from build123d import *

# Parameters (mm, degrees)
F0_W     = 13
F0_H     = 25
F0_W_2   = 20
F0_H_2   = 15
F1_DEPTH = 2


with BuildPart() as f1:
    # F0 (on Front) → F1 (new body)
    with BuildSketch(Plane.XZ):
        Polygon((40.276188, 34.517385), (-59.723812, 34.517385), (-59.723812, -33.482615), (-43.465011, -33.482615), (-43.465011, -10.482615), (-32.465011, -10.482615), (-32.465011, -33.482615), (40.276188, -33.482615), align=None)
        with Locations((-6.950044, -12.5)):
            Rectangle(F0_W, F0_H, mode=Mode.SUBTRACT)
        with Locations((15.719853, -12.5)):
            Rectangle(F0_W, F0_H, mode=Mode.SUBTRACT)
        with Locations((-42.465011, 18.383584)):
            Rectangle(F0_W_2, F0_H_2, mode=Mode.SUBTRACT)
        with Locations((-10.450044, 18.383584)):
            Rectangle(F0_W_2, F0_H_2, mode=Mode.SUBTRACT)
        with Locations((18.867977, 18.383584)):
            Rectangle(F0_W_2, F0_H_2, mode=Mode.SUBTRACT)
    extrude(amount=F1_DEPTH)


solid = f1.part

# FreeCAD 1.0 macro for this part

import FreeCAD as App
import Part
import Sketcher
Q = App.Units.Quantity

doc = App.newDocument("Part")
body = doc.addObject("PartDesign::Body", "Body")

# Sketch on XZ plane
sketch1 = body.newObject("Sketcher::SketchObject", "Sketch")
sketch1.AttachmentSupport = (doc.getObject("XZ_Plane"), [""])
sketch1.MapMode = "FlatFace"
sketch1.addGeometry([
    Part.LineSegment(App.Vector(40.276188, 34.517385, 0), App.Vector(-59.723812, 34.517385, 0)),  # 0
    Part.LineSegment(App.Vector(-59.723812, 34.517385, 0), App.Vector(-59.723812, -33.482615, 0)),  # 1
    Part.LineSegment(App.Vector(-59.723812, -33.482615, 0), App.Vector(-43.465011, -33.482615, 0)),  # 2
    Part.LineSegment(App.Vector(-43.465011, -33.482615, 0), App.Vector(-43.465011, -10.482615, 0)),  # 3
    Part.LineSegment(App.Vector(-43.465011, -10.482615, 0), App.Vector(-32.465011, -10.482615, 0)),  # 4
    Part.LineSegment(App.Vector(-32.465011, -10.482615, 0), App.Vector(-32.465011, -33.482615, 0)),  # 5
    Part.LineSegment(App.Vector(-32.465011, -33.482615, 0), App.Vector(40.276188, -33.482615, 0)),  # 6
    Part.LineSegment(App.Vector(40.276188, -33.482615, 0), App.Vector(40.276188, 34.517385, 0)),  # 7
    Part.LineSegment(App.Vector(-0.450044, -25, 0), App.Vector(-13.450044, -25, 0)),  # 8
    Part.LineSegment(App.Vector(-13.450044, -25, 0), App.Vector(-13.450044, 0, 0)),  # 9
    Part.LineSegment(App.Vector(-13.450044, 0, 0), App.Vector(-0.450044, 0, 0)),  # 10
    Part.LineSegment(App.Vector(-0.450044, 0, 0), App.Vector(-0.450044, -25, 0)),  # 11
    Part.LineSegment(App.Vector(22.219853, -25, 0), App.Vector(9.219853, -25, 0)),  # 12
    Part.LineSegment(App.Vector(9.219853, -25, 0), App.Vector(9.219853, 0, 0)),  # 13
    Part.LineSegment(App.Vector(9.219853, 0, 0), App.Vector(22.219853, 0, 0)),  # 14
    Part.LineSegment(App.Vector(22.219853, 0, 0), App.Vector(22.219853, -25, 0)),  # 15
    Part.LineSegment(App.Vector(-32.465011, 10.883584, 0), App.Vector(-52.465011, 10.883584, 0)),  # 16
    Part.LineSegment(App.Vector(-52.465011, 10.883584, 0), App.Vector(-52.465011, 25.883584, 0)),  # 17
    Part.LineSegment(App.Vector(-52.465011, 25.883584, 0), App.Vector(-32.465011, 25.883584, 0)),  # 18
    Part.LineSegment(App.Vector(-32.465011, 25.883584, 0), App.Vector(-32.465011, 10.883584, 0)),  # 19
    Part.LineSegment(App.Vector(-0.450044, 10.883584, 0), App.Vector(-20.450044, 10.883584, 0)),  # 20
    Part.LineSegment(App.Vector(-20.450044, 10.883584, 0), App.Vector(-20.450044, 25.883584, 0)),  # 21
    Part.LineSegment(App.Vector(-20.450044, 25.883584, 0), App.Vector(-0.450044, 25.883584, 0)),  # 22
    Part.LineSegment(App.Vector(-0.450044, 25.883584, 0), App.Vector(-0.450044, 10.883584, 0)),  # 23
    Part.LineSegment(App.Vector(28.867977, 10.883584, 0), App.Vector(8.867977, 10.883584, 0)),  # 24
    Part.LineSegment(App.Vector(8.867977, 10.883584, 0), App.Vector(8.867977, 25.883584, 0)),  # 25
    Part.LineSegment(App.Vector(8.867977, 25.883584, 0), App.Vector(28.867977, 25.883584, 0)),  # 26
    Part.LineSegment(App.Vector(28.867977, 25.883584, 0), App.Vector(28.867977, 10.883584, 0)),  # 27
], False)
sketch1.addConstraint([
    Sketcher.Constraint("Coincident", 0, 2, 1, 1),
    Sketcher.Constraint("Coincident", 1, 2, 2, 1),
    Sketcher.Constraint("Coincident", 2, 2, 3, 1),
    Sketcher.Constraint("Coincident", 3, 2, 4, 1),
    Sketcher.Constraint("Coincident", 4, 2, 5, 1),
    Sketcher.Constraint("Coincident", 5, 2, 6, 1),
    Sketcher.Constraint("Coincident", 6, 2, 7, 1),
    Sketcher.Constraint("Coincident", 7, 2, 0, 1),
    Sketcher.Constraint("Coincident", 8, 2, 9, 1),
    Sketcher.Constraint("Coincident", 9, 2, 10, 1),
    Sketcher.Constraint("Coincident", 10, 2, 11, 1),
    Sketcher.Constraint("Coincident", 11, 2, 8, 1),
    Sketcher.Constraint("Coincident", 12, 2, 13, 1),
    Sketcher.Constraint("Coincident", 13, 2, 14, 1),
    Sketcher.Constraint("Coincident", 14, 2, 15, 1),
    Sketcher.Constraint("Coincident", 15, 2, 12, 1),
    Sketcher.Constraint("Coincident", 16, 2, 17, 1),
    Sketcher.Constraint("Coincident", 17, 2, 18, 1),
    Sketcher.Constraint("Coincident", 18, 2, 19, 1),
    Sketcher.Constraint("Coincident", 19, 2, 16, 1),
    Sketcher.Constraint("Coincident", 20, 2, 21, 1),
    Sketcher.Constraint("Coincident", 21, 2, 22, 1),
    Sketcher.Constraint("Coincident", 22, 2, 23, 1),
    Sketcher.Constraint("Coincident", 23, 2, 20, 1),
    Sketcher.Constraint("Coincident", 24, 2, 25, 1),
    Sketcher.Constraint("Coincident", 25, 2, 26, 1),
    Sketcher.Constraint("Coincident", 26, 2, 27, 1),
    Sketcher.Constraint("Coincident", 27, 2, 24, 1),
    Sketcher.Constraint("Horizontal", 0),
    Sketcher.Constraint("Vertical", 1),
    Sketcher.Constraint("Horizontal", 2),
    Sketcher.Constraint("Vertical", 3),
    Sketcher.Constraint("Horizontal", 4),
    Sketcher.Constraint("Vertical", 5),
    Sketcher.Constraint("Horizontal", 6),
    Sketcher.Constraint("Vertical", 7),
    Sketcher.Constraint("Horizontal", 8),
    Sketcher.Constraint("Vertical", 9),
    Sketcher.Constraint("Horizontal", 10),
    Sketcher.Constraint("Vertical", 11),
    Sketcher.Constraint("Horizontal", 12),
    Sketcher.Constraint("Vertical", 13),
    Sketcher.Constraint("Horizontal", 14),
    Sketcher.Constraint("Vertical", 15),
    Sketcher.Constraint("Horizontal", 16),
    Sketcher.Constraint("Vertical", 17),
    Sketcher.Constraint("Horizontal", 18),
    Sketcher.Constraint("Vertical", 19),
    Sketcher.Constraint("Horizontal", 20),
    Sketcher.Constraint("Vertical", 21),
    Sketcher.Constraint("Horizontal", 22),
    Sketcher.Constraint("Vertical", 23),
    Sketcher.Constraint("Horizontal", 24),
    Sketcher.Constraint("Vertical", 25),
    Sketcher.Constraint("Horizontal", 26),
    Sketcher.Constraint("Vertical", 27),
    Sketcher.Constraint("PointOnObject", 9, 2, -1),
    Sketcher.Constraint("PointOnObject", 13, 2, -1),
    Sketcher.Constraint("Horizontal", 2, 2, 5, 2),
    Sketcher.Constraint("Horizontal", 11, 2, 12, 2),
    Sketcher.Constraint("Horizontal", 19, 2, 20, 2),
    Sketcher.Constraint("Horizontal", 18, 2, 21, 2),
    Sketcher.Constraint("Horizontal", 23, 2, 24, 2),
    Sketcher.Constraint("Horizontal", 22, 2, 25, 2),
    Sketcher.Constraint("Vertical", 5, 2, 18, 2),
    Sketcher.Constraint("Vertical", 11, 2, 22, 2),
    Sketcher.Constraint("Equal", 10, 12),
    Sketcher.Constraint("Equal", 18, 20),
    Sketcher.Constraint("Equal", 22, 24),
    Sketcher.Constraint("DistanceX", 0, 2, 0, 1, Q("100 mm")),
    Sketcher.Constraint("DistanceX", 4, 1, 4, 2, Q("11 mm")),
    Sketcher.Constraint("DistanceX", 8, 2, 8, 1, Q("13 mm")),
    Sketcher.Constraint("DistanceX", 16, 2, 16, 1, Q("20 mm")),
    Sketcher.Constraint("DistanceY", 1, 2, 1, 1, Q("68 mm")),
    Sketcher.Constraint("DistanceY", 3, 1, 3, 2, Q("23 mm")),
    Sketcher.Constraint("DistanceY", 9, 1, 9, 2, Q("25 mm")),
    Sketcher.Constraint("DistanceY", 17, 1, 17, 2, Q("15 mm")),
    Sketcher.Constraint("DistanceX", 2, 1, 2, 2, Q("16.258801 mm")),
    Sketcher.Constraint("DistanceY", 3, 2, 16, 2, Q("21.366199 mm")),
    Sketcher.Constraint("DistanceX", 2, 2, -1, 1, Q("43.465011 mm")),
    Sketcher.Constraint("DistanceX", 1, 2, 8, 2, Q("46.273768 mm")),
    Sketcher.Constraint("DistanceX", 23, 2, 24, 2, Q("9.318021 mm")),
    Sketcher.Constraint("DistanceY", -1, 1, 0, 2, Q("34.517385 mm")),
    Sketcher.Constraint("DistanceX", -1, 1, 12, 2, Q("9.219853 mm")),
])
pad1 = body.newObject("PartDesign::Pad", "Pad")
pad1.Profile = sketch1
pad1.Length = 2

doc.recompute()
